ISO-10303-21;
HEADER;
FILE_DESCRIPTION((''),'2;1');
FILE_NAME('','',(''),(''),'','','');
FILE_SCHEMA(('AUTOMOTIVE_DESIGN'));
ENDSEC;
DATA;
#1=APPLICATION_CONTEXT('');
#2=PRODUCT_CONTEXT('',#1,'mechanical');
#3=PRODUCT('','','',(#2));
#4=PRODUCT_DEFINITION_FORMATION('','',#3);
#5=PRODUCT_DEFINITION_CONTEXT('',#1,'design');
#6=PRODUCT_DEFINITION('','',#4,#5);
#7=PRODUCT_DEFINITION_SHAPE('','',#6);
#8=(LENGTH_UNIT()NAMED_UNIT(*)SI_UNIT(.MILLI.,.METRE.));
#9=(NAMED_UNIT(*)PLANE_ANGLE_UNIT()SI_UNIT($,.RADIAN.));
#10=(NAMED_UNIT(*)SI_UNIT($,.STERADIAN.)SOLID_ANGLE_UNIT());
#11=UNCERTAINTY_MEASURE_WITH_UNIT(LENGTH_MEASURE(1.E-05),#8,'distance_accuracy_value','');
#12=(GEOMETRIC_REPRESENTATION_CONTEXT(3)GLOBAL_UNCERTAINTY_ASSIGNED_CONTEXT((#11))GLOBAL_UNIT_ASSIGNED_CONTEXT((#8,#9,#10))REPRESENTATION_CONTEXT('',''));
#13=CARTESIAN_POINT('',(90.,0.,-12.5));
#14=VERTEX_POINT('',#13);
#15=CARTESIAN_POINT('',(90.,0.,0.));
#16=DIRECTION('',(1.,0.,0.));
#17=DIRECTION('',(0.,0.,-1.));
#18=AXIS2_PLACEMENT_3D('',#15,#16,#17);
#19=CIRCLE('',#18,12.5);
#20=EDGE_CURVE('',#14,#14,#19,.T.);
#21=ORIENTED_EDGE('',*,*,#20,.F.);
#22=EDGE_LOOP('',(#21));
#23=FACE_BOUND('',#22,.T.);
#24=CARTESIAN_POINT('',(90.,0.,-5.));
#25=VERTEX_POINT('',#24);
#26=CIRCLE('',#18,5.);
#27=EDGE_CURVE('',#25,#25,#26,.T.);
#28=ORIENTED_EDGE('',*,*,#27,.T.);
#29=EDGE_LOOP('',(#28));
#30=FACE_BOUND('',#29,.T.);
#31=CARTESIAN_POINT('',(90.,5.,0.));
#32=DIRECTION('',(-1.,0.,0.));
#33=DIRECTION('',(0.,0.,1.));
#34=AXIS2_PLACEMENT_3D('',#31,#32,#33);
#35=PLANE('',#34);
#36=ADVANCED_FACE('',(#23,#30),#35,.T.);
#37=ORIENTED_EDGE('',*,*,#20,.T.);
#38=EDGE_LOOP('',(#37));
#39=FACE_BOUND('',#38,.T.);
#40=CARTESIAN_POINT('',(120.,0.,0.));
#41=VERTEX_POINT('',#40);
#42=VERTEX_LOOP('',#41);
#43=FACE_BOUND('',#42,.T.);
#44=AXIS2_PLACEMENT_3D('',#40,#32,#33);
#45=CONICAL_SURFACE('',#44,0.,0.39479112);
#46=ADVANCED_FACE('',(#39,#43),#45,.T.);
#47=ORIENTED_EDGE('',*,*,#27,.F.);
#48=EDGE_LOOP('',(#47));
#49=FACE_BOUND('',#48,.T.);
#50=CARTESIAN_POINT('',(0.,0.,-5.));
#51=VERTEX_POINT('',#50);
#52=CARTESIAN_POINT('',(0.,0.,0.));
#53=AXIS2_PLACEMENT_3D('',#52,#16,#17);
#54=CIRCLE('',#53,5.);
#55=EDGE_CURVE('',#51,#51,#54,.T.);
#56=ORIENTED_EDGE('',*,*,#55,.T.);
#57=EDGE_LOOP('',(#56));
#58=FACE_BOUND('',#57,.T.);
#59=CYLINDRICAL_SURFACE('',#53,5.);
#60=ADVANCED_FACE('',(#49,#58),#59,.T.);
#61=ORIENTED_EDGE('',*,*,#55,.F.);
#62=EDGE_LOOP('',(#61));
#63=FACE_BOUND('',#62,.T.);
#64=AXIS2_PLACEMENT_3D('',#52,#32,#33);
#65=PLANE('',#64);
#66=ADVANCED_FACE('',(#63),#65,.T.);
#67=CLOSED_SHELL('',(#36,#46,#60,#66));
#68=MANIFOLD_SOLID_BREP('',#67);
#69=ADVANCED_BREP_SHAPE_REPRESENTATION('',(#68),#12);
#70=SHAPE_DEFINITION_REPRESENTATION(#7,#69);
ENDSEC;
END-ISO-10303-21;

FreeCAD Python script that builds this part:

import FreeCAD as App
import Part
import Sketcher

V = App.Vector

doc = App.newDocument("Part")
body = doc.addObject("PartDesign::Body", "Body")

sketch1 = body.newObject("Sketcher::SketchObject", "Sketch")
sketch1.AttachmentSupport = (doc.getObject("XY_Plane"), [""])
sketch1.MapMode = "FlatFace"
sketch1.addGeometry(Part.LineSegment(V(0, 5, 0), V(0, 0, 0)), False)
sketch1.addGeometry(Part.LineSegment(V(0, 0, 0), V(120, 0, 0)), False)
sketch1.addGeometry(Part.LineSegment(V(120, 0, 0), V(90, 12, 0)), False)
sketch1.addGeometry(Part.LineSegment(V(90, 12, 0), V(90, 5, 0)), False)
sketch1.addGeometry(Part.LineSegment(V(90, 5, 0), V(0, 5, 0)), False)
sketch1.addConstraint(Sketcher.Constraint("Coincident", 0, 2, 1, 1))
sketch1.addConstraint(Sketcher.Constraint("Coincident", 1, 2, 2, 1))
sketch1.addConstraint(Sketcher.Constraint("Coincident", 2, 2, 3, 1))
sketch1.addConstraint(Sketcher.Constraint("Coincident", 3, 2, 4, 1))
sketch1.addConstraint(Sketcher.Constraint("Coincident", 4, 2, 0, 1))
sketch1.addConstraint(Sketcher.Constraint("Vertical", 0))
sketch1.addConstraint(Sketcher.Constraint("Horizontal", 1))
sketch1.addConstraint(Sketcher.Constraint("Vertical", 3))
sketch1.addConstraint(Sketcher.Constraint("Horizontal", 4))
sketch1.addConstraint(Sketcher.Constraint("Coincident", 0, 2, -1, 1))
sketch1.addConstraint(Sketcher.Constraint("DistanceX", 1, 1, 1, 2, 120.0))
sketch1.addConstraint(Sketcher.Constraint("DistanceX", 4, 2, 4, 1, 90.0))
sketch1.addConstraint(Sketcher.Constraint("DistanceY", 0, 2, 0, 1, 5.0))
sketch1.addConstraint(Sketcher.Constraint("DistanceY", 3, 2, 3, 1, 7.5))
revolution = body.newObject("PartDesign::Revolution", "Revolution")
revolution.Profile = sketch1
revolution.ReferenceAxis = (sketch1, ["H_Axis"])
revolution.Angle = 360

doc.recompute()
